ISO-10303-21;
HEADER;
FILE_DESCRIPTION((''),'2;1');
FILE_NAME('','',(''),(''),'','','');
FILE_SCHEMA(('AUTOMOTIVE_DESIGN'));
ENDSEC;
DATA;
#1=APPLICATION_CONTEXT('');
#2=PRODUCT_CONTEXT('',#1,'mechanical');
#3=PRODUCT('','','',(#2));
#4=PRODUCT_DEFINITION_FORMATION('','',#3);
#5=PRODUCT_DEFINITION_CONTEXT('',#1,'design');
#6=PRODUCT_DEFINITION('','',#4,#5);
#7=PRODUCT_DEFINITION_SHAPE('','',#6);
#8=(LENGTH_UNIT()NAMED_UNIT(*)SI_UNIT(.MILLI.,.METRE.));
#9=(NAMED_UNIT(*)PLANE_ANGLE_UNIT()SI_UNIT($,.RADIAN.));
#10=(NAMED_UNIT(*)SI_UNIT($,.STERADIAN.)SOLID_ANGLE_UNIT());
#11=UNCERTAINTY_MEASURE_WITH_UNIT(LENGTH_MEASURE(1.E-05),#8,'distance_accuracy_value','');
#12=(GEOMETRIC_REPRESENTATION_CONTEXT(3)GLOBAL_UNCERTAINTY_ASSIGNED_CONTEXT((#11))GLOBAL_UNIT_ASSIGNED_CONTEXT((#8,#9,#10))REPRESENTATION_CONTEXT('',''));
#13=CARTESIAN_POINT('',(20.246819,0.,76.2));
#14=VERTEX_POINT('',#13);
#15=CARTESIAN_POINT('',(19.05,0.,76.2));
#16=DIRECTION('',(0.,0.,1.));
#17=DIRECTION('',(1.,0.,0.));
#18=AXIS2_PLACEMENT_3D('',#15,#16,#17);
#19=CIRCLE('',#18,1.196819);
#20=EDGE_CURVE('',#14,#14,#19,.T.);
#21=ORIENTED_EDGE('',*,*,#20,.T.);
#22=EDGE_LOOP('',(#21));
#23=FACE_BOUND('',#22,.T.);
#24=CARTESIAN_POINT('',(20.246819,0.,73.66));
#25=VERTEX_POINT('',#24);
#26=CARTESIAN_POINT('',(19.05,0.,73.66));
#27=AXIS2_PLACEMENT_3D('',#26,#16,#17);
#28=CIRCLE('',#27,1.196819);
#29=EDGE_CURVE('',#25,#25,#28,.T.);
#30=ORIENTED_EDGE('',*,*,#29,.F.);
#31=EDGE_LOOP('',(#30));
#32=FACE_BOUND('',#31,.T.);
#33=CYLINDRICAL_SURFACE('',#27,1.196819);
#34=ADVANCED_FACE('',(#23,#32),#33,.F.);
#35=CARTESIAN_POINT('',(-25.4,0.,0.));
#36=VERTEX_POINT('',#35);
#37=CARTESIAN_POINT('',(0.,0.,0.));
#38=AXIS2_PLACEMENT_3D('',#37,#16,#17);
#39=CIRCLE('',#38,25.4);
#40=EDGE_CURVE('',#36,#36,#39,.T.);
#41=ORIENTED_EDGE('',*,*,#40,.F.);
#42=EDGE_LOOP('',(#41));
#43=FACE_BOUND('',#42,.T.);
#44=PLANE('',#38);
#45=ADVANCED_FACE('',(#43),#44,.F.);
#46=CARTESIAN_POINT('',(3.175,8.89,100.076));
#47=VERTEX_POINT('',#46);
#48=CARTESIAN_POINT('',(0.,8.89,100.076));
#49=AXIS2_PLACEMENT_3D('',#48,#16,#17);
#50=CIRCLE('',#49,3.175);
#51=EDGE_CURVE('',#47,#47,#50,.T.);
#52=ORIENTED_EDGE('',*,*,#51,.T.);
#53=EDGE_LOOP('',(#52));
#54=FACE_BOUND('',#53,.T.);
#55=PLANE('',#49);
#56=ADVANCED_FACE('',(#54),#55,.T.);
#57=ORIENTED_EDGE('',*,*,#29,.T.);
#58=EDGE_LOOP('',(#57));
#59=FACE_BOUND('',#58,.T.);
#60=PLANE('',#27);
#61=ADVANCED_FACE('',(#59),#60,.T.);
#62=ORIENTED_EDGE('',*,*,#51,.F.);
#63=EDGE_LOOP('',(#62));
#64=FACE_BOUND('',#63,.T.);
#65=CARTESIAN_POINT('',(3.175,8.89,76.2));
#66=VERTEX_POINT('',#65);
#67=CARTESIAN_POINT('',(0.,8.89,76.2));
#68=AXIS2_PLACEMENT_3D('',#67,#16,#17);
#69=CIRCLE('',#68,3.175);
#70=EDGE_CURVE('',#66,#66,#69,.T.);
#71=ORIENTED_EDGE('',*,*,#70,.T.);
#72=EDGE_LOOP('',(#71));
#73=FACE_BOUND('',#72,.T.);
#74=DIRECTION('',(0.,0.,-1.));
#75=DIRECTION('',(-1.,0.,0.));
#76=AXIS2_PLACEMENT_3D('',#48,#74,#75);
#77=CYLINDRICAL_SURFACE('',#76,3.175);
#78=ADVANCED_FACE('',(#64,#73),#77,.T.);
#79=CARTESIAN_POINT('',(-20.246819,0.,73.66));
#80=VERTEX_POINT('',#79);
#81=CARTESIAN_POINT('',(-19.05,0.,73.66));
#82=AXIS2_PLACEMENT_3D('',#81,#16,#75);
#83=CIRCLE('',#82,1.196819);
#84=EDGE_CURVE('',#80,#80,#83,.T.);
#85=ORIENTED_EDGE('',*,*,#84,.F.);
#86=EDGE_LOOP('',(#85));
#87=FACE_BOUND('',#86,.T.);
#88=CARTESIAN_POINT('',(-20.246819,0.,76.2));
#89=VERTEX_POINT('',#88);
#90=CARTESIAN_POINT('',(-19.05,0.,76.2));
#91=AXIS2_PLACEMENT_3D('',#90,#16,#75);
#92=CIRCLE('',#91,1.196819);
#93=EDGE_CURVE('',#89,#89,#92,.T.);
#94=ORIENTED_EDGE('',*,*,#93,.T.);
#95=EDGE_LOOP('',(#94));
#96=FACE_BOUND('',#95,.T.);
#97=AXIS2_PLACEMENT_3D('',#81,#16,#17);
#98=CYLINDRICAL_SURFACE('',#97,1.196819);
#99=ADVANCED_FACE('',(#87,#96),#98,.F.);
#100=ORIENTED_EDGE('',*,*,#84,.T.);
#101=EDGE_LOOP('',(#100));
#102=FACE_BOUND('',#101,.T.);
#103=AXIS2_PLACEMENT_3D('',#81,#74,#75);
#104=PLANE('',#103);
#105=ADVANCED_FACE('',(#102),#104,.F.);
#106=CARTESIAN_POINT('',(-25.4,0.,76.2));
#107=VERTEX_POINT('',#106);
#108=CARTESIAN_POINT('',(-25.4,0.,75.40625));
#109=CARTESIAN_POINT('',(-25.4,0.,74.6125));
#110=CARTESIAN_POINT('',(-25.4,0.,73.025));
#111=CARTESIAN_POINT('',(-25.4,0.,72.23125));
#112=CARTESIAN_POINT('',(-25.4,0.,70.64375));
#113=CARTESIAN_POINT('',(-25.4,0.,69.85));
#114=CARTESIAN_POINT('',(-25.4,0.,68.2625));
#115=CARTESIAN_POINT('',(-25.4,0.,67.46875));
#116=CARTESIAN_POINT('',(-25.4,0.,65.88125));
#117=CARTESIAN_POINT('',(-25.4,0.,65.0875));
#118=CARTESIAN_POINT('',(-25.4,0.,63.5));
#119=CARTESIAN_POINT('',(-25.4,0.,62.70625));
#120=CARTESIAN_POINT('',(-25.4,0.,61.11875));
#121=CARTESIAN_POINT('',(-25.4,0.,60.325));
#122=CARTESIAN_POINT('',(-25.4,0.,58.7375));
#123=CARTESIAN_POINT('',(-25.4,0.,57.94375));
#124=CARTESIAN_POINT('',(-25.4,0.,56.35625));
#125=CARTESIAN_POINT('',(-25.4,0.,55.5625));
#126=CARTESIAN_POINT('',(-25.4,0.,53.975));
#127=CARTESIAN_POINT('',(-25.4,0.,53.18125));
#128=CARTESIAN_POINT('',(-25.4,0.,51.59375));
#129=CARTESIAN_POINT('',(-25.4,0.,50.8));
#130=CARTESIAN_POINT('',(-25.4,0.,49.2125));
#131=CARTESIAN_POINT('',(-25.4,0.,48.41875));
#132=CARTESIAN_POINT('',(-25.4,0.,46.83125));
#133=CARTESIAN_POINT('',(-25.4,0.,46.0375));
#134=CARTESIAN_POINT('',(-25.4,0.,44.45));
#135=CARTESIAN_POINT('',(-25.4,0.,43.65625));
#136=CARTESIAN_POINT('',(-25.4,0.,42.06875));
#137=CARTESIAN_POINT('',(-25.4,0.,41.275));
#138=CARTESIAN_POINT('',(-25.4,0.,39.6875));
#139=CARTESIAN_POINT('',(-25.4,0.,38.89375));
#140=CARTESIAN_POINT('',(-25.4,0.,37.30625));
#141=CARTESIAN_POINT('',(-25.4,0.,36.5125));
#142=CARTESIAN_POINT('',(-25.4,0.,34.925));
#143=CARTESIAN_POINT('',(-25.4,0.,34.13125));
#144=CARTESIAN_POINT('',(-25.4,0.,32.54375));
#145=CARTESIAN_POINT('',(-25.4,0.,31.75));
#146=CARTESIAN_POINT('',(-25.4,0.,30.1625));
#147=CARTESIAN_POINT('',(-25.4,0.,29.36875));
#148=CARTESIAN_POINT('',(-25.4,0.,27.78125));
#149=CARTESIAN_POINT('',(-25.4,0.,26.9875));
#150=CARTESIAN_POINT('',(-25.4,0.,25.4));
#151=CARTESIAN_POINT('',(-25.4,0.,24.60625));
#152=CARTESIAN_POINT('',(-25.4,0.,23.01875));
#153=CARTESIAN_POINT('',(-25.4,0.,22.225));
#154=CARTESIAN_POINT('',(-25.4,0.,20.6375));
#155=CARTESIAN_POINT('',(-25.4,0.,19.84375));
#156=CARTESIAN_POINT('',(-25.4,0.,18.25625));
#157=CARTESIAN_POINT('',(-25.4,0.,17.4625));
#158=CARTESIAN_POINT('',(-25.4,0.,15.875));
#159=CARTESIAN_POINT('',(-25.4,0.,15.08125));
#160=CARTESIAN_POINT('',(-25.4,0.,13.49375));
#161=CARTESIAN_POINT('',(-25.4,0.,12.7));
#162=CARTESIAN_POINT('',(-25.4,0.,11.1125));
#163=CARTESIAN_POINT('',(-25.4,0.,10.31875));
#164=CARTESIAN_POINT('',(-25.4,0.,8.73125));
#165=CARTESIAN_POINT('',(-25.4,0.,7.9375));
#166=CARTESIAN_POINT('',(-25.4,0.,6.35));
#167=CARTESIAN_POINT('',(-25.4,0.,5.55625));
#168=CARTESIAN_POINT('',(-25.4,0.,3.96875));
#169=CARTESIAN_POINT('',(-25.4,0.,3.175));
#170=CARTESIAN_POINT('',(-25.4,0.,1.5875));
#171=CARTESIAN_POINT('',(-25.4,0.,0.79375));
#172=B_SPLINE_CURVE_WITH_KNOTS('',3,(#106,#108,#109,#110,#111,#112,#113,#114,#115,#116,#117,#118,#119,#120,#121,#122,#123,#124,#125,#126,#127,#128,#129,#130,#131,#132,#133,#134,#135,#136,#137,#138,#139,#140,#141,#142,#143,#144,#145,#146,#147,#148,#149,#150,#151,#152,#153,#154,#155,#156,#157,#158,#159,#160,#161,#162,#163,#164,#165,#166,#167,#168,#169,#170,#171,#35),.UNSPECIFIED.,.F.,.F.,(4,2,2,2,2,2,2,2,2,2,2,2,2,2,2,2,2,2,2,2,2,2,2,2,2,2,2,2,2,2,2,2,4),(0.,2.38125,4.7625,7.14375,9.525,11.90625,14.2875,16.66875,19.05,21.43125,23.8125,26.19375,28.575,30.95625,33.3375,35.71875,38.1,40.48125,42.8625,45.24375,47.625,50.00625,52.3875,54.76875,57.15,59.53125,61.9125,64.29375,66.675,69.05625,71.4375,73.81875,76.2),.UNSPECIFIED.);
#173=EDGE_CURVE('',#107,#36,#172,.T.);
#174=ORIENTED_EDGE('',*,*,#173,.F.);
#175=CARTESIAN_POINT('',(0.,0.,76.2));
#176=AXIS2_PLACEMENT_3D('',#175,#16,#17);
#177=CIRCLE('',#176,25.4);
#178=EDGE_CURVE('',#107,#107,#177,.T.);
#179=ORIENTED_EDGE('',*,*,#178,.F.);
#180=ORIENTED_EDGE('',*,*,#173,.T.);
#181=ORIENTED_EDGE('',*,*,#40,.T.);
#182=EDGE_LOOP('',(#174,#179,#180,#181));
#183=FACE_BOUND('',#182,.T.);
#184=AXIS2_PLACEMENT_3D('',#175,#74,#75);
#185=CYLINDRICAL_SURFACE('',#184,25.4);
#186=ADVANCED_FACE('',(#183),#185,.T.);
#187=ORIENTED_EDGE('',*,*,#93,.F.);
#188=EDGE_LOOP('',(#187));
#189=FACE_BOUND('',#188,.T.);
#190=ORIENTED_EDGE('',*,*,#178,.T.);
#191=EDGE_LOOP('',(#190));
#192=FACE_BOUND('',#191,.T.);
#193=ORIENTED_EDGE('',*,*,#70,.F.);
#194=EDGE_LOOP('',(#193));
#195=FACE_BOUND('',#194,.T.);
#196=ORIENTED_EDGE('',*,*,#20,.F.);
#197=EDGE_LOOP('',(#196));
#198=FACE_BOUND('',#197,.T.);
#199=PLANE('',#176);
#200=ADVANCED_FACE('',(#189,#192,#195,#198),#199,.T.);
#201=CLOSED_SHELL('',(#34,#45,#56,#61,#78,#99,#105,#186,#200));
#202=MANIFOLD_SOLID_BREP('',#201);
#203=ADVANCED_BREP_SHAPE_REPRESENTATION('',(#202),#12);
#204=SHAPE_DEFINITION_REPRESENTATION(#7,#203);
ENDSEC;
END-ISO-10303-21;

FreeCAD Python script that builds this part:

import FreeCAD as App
import Part
import Sketcher
from FreeCAD import Vector
Q = App.Units.Quantity

doc = App.newDocument("Part")
body = doc.addObject("PartDesign::Body", "Body")

sketch1 = doc.addObject("Sketcher::SketchObject", "Sketch")
body.addObject(sketch1)
sketch1.AttachmentSupport = (doc.XY_Plane, [""])
sketch1.MapMode = "FlatFace"
sketch1.addGeometry(Part.Circle(Vector(0, 0, 0), Vector(0, 0, 1), 25.4), False)
sketch1.addConstraint([
    Sketcher.Constraint("Coincident", 0, 3, -1, 1),
    Sketcher.Constraint("Diameter", 0, Q("2 in")),
])
pad1 = doc.addObject("PartDesign::Pad", "Pad")
body.addObject(pad1)
pad1.Profile = sketch1
pad1.Length = Q("3 in")

sketch2 = doc.addObject("Sketcher::SketchObject", "Sketch001")
body.addObject(sketch2)
sketch2.AttachmentSupport = (doc.XY_Plane, [""])
sketch2.MapMode = "FlatFace"
sketch2.AttachmentOffset = App.Placement(Vector(0, 0, 3 * 25.4), App.Rotation())
sketch2.addGeometry(Part.Circle(Vector(0, 8.89, 0), Vector(0, 0, 1), 3.175), False)
sketch2.addConstraint([
    Sketcher.Constraint("PointOnObject", 0, 3, -2),
    Sketcher.Constraint("Diameter", 0, Q("0.25 in")),
    Sketcher.Constraint("DistanceY", -1, 1, 0, 3, Q("0.35 in")),
])
pad2 = doc.addObject("PartDesign::Pad", "Pad001")
body.addObject(pad2)
pad2.Profile = sketch2
pad2.Length = Q("0.94 in")

sketch3 = doc.addObject("Sketcher::SketchObject", "Sketch002")
body.addObject(sketch3)
sketch3.AttachmentSupport = (doc.XY_Plane, [""])
sketch3.MapMode = "FlatFace"
sketch3.AttachmentOffset = App.Placement(Vector(0, 0, 3 * 25.4), App.Rotation())
sketch3.addGeometry([
    Part.Circle(Vector(19.05, 0, 0), Vector(0, 0, 1), 1.196819),
    Part.Circle(Vector(-19.05, 0, 0), Vector(0, 0, 1), 1.196819),
], False)
sketch3.addConstraint([
    Sketcher.Constraint("Equal", 0, 1),
    Sketcher.Constraint("Symmetric", 0, 3, 1, 3, -1, 1),
    Sketcher.Constraint("PointOnObject", 0, 3, -1),
    Sketcher.Constraint("DistanceX", 1, 3, 0, 3, Q("1.5 in")),
    Sketcher.Constraint("Diameter", 0, Q("2.393638 mm")),
])
pocket1 = doc.addObject("PartDesign::Pocket", "Pocket")
body.addObject(pocket1)
pocket1.Profile = sketch3
pocket1.Length = Q("0.1 in")

doc.recompute()
